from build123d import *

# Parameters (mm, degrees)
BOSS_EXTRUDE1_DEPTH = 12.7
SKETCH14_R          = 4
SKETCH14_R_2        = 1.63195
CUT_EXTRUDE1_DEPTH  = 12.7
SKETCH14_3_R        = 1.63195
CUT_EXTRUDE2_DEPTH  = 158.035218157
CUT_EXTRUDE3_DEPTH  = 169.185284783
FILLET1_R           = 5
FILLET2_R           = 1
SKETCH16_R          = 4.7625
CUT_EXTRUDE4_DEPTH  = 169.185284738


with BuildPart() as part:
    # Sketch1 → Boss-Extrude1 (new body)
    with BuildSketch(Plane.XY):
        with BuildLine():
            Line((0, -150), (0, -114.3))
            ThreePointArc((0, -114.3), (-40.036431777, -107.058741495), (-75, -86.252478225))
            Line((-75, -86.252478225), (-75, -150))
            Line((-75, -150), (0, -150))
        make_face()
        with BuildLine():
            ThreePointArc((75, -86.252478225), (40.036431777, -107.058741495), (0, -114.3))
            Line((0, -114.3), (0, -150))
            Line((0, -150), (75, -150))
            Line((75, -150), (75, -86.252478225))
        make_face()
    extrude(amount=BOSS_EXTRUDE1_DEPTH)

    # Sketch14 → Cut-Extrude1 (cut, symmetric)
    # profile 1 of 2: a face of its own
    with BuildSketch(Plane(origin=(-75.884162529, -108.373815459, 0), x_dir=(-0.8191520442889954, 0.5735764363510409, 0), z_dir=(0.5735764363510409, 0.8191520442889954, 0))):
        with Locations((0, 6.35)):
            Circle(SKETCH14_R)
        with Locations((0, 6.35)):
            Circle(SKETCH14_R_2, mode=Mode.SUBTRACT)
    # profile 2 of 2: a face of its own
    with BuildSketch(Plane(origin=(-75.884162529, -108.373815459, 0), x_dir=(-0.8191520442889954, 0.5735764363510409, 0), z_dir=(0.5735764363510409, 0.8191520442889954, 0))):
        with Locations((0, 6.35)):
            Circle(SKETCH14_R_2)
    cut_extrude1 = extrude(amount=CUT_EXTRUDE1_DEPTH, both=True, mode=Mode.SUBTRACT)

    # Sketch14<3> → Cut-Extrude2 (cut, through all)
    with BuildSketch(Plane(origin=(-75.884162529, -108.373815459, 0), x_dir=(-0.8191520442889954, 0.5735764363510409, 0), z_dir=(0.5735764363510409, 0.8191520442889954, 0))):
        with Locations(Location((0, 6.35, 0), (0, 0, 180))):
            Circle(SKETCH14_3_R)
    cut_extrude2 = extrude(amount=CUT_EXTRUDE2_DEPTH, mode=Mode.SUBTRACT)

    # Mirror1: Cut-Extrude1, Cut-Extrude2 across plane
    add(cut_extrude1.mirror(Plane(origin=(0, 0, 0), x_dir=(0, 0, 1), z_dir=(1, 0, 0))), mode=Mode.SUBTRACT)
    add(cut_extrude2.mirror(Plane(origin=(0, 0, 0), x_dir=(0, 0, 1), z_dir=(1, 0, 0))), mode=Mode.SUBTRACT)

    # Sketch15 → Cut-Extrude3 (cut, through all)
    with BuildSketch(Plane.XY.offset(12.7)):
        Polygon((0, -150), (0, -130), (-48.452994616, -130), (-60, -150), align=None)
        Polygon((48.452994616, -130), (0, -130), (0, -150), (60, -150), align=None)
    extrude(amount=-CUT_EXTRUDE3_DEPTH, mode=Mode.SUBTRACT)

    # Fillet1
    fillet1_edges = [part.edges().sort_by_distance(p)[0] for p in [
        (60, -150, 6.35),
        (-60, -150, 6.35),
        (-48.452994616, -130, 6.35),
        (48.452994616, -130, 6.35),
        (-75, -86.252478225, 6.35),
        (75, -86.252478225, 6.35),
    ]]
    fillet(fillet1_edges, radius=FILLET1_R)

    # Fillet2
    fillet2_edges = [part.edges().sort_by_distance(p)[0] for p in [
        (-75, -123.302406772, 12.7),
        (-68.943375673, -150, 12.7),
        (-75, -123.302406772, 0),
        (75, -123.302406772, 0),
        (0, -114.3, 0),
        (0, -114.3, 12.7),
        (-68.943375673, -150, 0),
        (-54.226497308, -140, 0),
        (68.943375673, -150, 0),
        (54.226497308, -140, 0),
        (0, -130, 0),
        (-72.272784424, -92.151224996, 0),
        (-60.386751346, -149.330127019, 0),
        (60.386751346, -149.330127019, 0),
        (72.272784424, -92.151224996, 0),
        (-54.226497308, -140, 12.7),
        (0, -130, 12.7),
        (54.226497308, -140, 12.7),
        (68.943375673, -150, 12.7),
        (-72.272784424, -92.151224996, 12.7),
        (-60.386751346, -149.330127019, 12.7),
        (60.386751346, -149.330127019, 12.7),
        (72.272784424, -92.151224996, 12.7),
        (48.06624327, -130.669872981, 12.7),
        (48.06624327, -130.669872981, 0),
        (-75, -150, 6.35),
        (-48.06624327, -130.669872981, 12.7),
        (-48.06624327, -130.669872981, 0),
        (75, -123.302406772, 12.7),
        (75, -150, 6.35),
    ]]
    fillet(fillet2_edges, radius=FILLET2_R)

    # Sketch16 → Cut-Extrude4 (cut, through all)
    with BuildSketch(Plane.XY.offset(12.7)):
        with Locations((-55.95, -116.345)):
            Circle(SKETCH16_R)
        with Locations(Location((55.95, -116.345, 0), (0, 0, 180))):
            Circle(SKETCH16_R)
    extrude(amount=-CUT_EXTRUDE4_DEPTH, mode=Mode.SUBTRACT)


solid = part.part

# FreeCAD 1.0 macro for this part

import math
import FreeCAD as App
import Part
import Sketcher
Q = App.Units.Quantity


def edges_at(feature, points):
    """Names of the edges that pass closest to the given points."""
    edges = feature.Shape.Edges
    near = lambda p: min(range(len(edges)), key=lambda i: edges[i].distToShape(Part.Vertex(*p))[0])
    return sorted({f"Edge{near(p) + 1}" for p in points})

doc = App.newDocument("Part")
body = doc.addObject("PartDesign::Body", "Body")

# Sketch on XY plane
sketch1 = doc.addObject("Sketcher::SketchObject", "Sketch")
body.addObject(sketch1)
sketch1.AttachmentSupport = (doc.XY_Plane, [""])
sketch1.MapMode = "FlatFace"
sketch1.addGeometry([
    Part.ArcOfCircle(Part.Circle(App.Vector(0, 0, 0), App.Vector(0, 0, 1), 114), math.radians(-131), math.radians(-90)),  # 0
    Part.LineSegment(App.Vector(-75, -86, 0), App.Vector(-75, -150, 0)),  # 1
    Part.LineSegment(App.Vector(-75, -150, 0), App.Vector(75, -150, 0)),  # 2
    Part.LineSegment(App.Vector(75, -150, 0), App.Vector(75, -86, 0)),  # 3
    Part.ArcOfCircle(Part.Circle(App.Vector(0, 0, 0), App.Vector(0, 0, 1), 114), math.radians(-90), math.radians(-49)),  # 4
], False)
sketch1.addConstraint([
    Sketcher.Constraint("Coincident", 0, 1, 1, 1),
    Sketcher.Constraint("Coincident", 1, 2, 2, 1),
    Sketcher.Constraint("Coincident", 2, 2, 3, 1),
    Sketcher.Constraint("Coincident", 3, 2, 4, 2),
    Sketcher.Constraint("Tangent", 4, 1, 0, 2),
    Sketcher.Constraint("Vertical", 1),
    Sketcher.Constraint("Horizontal", 2),
    Sketcher.Constraint("Vertical", 3),
    Sketcher.Constraint("Coincident", 0, 3, -1, 1),
    Sketcher.Constraint("Equal", 0, 4),
    Sketcher.Constraint("PointOnObject", 4, 1, -2),
    Sketcher.Constraint("Horizontal", 0, 1, 3, 2),
    Sketcher.Constraint("Radius", 0, Q("114.3 mm")),
    Sketcher.Constraint("DistanceX", 2, 1, 2, 2, Q("150 mm")),
    Sketcher.Constraint("DistanceY", 1, 2, -1, 1, Q("150 mm")),
])
pad1 = doc.addObject("PartDesign::Pad", "Pad")
body.addObject(pad1)
pad1.Profile = sketch1
pad1.Length = 12.7

# Sketch on an angled plane
sketch2 = doc.addObject("Sketcher::SketchObject", "Sketch001")
body.addObject(sketch2)
sketch2.Placement = App.Placement(App.Vector(-75.884163, -108.373815, 0), App.Rotation(App.Vector(-0.819152044, 0.573576436, 0), App.Vector(0, 0, 0.999999999), App.Vector(0.573576436, 0.819152044, 0), "ZXY"))
sketch2.addGeometry(Part.Circle(App.Vector(0, 6.3, 0), App.Vector(0, 0, 1), 4), False)
sketch2.addConstraint([
    Sketcher.Constraint("PointOnObject", 0, 3, -2),
    Sketcher.Constraint("Diameter", 0, Q("8 mm")),
    Sketcher.Constraint("DistanceY", -1, 1, 0, 3, Q("6.35 mm")),
])
pocket1 = doc.addObject("PartDesign::Pocket", "Pocket")
body.addObject(pocket1)
pocket1.Profile = sketch2
pocket1.Length = 25.4
pocket1.Midplane = True

# Sketch on an angled plane
sketch3 = doc.addObject("Sketcher::SketchObject", "Sketch002")
body.addObject(sketch3)
sketch3.Placement = App.Placement(App.Vector(-75.884163, -108.373815, 0), App.Rotation(App.Vector(-0.819152044, 0.573576436, 0), App.Vector(0, 0, 0.999999999), App.Vector(0.573576436, 0.819152044, 0), "ZXY"))
sketch3.addGeometry(Part.Circle(App.Vector(0, 6.3, 0), App.Vector(0, 0, 1), 1.6), False)
sketch3.addConstraint([
    Sketcher.Constraint("PointOnObject", 0, 3, -2),
    Sketcher.Constraint("Diameter", 0, Q("3.2639 mm")),
    Sketcher.Constraint("DistanceY", -1, 1, 0, 3, Q("6.35 mm")),
])
pocket2 = doc.addObject("PartDesign::Pocket", "Pocket001")
body.addObject(pocket2)
pocket2.Profile = sketch3
pocket2.Type = "ThroughAll"
pocket2.Reversed = True
doc.recompute()

mirrored = doc.addObject("PartDesign::Mirrored", "Mirrored")
body.addObject(mirrored)
mirrored.Originals = [pocket1, pocket2]
mirrored.MirrorPlane = (doc.YZ_Plane, [""])
body.Tip = mirrored

# Sketch on XY plane
sketch4 = doc.addObject("Sketcher::SketchObject", "Sketch003")
body.addObject(sketch4)
sketch4.AttachmentSupport = (doc.XY_Plane, [""])
sketch4.MapMode = "FlatFace"
sketch4.AttachmentOffset = App.Placement(App.Vector(0, 0, 12.7), App.Rotation())
sketch4.addGeometry([
    Part.LineSegment(App.Vector(-48, -130, 0), App.Vector(-60, -150, 0)),
    Part.LineSegment(App.Vector(-60, -150, 0), App.Vector(60, -150, 0)),
    Part.LineSegment(App.Vector(60, -150, 0), App.Vector(48, -130, 0)),
    Part.LineSegment(App.Vector(48, -130, 0), App.Vector(-48, -130, 0)),
], False)
sketch4.addConstraint([
    Sketcher.Constraint("Coincident", 0, 2, 1, 1),
    Sketcher.Constraint("Coincident", 1, 2, 2, 1),
    Sketcher.Constraint("Coincident", 2, 2, 3, 1),
    Sketcher.Constraint("Coincident", 3, 2, 0, 1),
    Sketcher.Constraint("Horizontal", 1),
    Sketcher.Constraint("Horizontal", 3),
    Sketcher.Constraint("Equal", 0, 2),
    Sketcher.Constraint("DistanceX", 1, 1, 1, 2, Q("120 mm")),
    Sketcher.Constraint("Angle", 0, Q("-120 deg")),
    Sketcher.Constraint("DistanceX", 0, 2, -1, 1, Q("60 mm")),
    Sketcher.Constraint("DistanceY", 0, 2, -1, 1, Q("150 mm")),
    Sketcher.Constraint("DistanceY", 2, 2, -1, 1, Q("130 mm")),
])
pocket3 = doc.addObject("PartDesign::Pocket", "Pocket002")
body.addObject(pocket3)
pocket3.Profile = sketch4
pocket3.Type = "ThroughAll"
doc.recompute()

fillet = doc.addObject("PartDesign::Fillet", "Fillet")
body.addObject(fillet)
fillet.Base = (pocket3, edges_at(pocket3, [
    (60, -150, 6.35),
    (-60, -150, 6.35),
    (-48.453, -130, 6.35),
    (48.453, -130, 6.35),
    (-75, -86.252, 6.35),
    (75, -86.252, 6.35),
]))
fillet.Radius = 5
doc.recompute()

fillet2 = doc.addObject("PartDesign::Fillet", "Fillet001")
body.addObject(fillet2)
fillet2.Base = (fillet, edges_at(fillet, [
    (-75, -123.302, 12.7),
    (-68.943, -150, 12.7),
    (-75, -123.302, 0),
    (75, -123.302, 0),
    (-35.252, -108.728, 0),
    (0, -114.3, 6.35),
    (-68.943, -150, 0),
    (-54.226, -140, 0),
    (68.943, -150, 0),
    (54.226, -140, 0),
    (0, -130, 0),
    (-72.273, -92.151, 0),
    (-60.387, -149.33, 0),
    (60.387, -149.33, 0),
    (72.273, -92.151, 0),
    (-54.226, -140, 12.7),
    (0, -130, 12.7),
    (54.226, -140, 12.7),
    (68.943, -150, 12.7),
    (-72.273, -92.151, 12.7),
    (-60.387, -149.33, 12.7),
    (60.387, -149.33, 12.7),
    (72.273, -92.151, 12.7),
    (48.066, -130.67, 12.7),
    (48.066, -130.67, 0),
    (-75, -150, 6.35),
    (-48.066, -130.67, 12.7),
    (-48.066, -130.67, 0),
    (75, -123.302, 12.7),
    (75, -150, 6.35),
]))
fillet2.Radius = 1

# Sketch on XY plane
sketch5 = doc.addObject("Sketcher::SketchObject", "Sketch004")
body.addObject(sketch5)
sketch5.AttachmentSupport = (doc.XY_Plane, [""])
sketch5.MapMode = "FlatFace"
sketch5.AttachmentOffset = App.Placement(App.Vector(0, 0, 12.7), App.Rotation())
sketch5.addGeometry([
    Part.Circle(App.Vector(-56, -116.3, 0), App.Vector(0, 0, 1), 4.8),
    Part.Circle(App.Vector(56, -116.3, 0), App.Vector(0, 0, 1), 4.8),
], False)
sketch5.addConstraint([
    Sketcher.Constraint("Equal", 0, 1),
    Sketcher.Constraint("Symmetric", 0, 3, 1, 3, -2),
    Sketcher.Constraint("Diameter", 0, Q("9.525 mm")),
    Sketcher.Constraint("DistanceX", 0, 3, 1, 3, Q("111.9 mm")),
    Sketcher.Constraint("DistanceY", 0, 3, -1, 1, Q("116.345 mm")),
])
pocket4 = doc.addObject("PartDesign::Pocket", "Pocket003")
body.addObject(pocket4)
pocket4.Profile = sketch5
pocket4.Type = "ThroughAll"

doc.recompute()
